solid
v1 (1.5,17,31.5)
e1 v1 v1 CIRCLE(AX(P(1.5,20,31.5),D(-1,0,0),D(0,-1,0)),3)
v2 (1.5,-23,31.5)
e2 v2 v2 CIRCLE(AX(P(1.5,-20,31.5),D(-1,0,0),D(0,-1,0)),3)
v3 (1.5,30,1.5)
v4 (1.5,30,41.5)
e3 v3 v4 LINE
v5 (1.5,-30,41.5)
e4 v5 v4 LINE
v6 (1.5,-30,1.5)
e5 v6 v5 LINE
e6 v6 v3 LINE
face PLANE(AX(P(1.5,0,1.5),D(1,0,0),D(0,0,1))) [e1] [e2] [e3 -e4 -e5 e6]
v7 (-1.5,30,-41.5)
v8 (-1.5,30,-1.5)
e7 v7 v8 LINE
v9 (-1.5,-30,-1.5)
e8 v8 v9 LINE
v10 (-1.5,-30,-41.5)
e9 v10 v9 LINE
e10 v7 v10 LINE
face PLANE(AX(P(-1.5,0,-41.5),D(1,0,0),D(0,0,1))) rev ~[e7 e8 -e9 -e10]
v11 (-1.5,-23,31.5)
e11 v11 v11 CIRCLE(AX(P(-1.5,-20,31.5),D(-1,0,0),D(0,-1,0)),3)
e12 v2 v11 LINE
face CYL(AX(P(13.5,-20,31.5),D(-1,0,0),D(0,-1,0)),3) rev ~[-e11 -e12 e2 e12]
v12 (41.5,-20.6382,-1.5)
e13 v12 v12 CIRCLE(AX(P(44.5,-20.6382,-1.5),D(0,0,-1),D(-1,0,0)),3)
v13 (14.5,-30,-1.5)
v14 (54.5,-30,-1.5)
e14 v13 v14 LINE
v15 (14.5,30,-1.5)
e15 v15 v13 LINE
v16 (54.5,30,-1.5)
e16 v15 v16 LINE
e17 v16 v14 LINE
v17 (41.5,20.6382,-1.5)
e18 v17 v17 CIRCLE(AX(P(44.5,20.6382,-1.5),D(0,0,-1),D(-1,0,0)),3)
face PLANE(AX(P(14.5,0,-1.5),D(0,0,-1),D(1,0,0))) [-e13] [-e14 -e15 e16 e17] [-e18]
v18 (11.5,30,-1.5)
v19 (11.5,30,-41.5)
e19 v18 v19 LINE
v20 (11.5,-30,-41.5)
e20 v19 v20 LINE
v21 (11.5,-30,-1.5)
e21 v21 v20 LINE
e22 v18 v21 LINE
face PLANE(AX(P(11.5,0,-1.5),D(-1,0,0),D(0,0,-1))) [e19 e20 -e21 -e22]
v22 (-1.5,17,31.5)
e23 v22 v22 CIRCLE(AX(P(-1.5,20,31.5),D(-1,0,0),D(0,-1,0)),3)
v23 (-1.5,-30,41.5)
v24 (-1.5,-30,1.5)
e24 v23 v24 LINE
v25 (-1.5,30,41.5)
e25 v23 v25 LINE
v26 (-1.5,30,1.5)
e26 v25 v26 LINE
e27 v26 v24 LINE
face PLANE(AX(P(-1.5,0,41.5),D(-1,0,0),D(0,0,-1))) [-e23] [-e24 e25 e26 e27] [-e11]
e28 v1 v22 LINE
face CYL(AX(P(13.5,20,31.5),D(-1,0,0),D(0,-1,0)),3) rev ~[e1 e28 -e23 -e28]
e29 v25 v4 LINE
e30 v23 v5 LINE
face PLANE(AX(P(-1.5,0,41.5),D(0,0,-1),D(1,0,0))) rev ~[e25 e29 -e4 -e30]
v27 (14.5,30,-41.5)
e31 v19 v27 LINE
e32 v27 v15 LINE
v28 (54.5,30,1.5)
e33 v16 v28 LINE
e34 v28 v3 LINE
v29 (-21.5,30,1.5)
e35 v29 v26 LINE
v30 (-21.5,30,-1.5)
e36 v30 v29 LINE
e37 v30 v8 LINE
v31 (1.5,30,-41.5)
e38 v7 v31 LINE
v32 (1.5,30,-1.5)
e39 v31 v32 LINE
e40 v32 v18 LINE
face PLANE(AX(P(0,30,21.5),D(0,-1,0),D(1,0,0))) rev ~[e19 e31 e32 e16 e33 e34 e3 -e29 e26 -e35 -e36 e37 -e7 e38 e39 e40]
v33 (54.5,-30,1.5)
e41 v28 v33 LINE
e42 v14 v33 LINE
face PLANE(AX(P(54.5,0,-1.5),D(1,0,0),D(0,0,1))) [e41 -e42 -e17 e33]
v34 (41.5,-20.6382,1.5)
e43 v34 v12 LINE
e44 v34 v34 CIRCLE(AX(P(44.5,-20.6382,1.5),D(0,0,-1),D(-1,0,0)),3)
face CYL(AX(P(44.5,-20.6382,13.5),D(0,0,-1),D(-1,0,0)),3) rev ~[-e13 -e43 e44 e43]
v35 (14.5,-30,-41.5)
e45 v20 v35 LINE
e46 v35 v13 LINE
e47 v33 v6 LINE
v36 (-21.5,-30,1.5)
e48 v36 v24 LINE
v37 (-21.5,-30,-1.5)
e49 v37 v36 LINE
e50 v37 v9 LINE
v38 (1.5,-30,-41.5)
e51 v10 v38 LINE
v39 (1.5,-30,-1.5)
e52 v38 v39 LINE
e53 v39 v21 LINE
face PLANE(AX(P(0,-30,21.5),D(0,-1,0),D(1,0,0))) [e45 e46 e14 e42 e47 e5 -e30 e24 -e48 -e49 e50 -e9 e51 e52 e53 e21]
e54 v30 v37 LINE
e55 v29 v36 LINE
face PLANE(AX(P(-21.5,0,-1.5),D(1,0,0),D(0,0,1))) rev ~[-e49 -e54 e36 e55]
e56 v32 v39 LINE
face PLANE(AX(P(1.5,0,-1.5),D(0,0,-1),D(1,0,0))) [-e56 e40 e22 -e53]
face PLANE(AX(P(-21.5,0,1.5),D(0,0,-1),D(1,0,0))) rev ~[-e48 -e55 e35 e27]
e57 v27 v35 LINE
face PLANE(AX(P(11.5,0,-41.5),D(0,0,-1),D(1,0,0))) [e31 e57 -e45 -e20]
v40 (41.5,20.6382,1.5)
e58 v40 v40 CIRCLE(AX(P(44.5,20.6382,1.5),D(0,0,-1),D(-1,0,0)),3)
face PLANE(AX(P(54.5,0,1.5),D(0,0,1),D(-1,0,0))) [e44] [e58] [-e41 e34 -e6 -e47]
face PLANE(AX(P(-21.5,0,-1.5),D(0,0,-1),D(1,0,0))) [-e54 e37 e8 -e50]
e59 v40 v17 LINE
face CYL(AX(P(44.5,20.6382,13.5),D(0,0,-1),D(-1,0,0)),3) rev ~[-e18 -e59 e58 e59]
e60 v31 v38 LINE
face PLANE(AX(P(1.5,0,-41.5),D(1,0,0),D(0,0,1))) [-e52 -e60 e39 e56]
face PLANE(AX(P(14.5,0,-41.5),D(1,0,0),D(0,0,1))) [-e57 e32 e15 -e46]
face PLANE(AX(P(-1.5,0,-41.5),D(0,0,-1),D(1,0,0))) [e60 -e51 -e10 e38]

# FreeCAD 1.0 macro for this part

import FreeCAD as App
import Part
import Sketcher
from FreeCAD import Vector
Q = App.Units.Quantity


def add_polygon(sketch, points):
    """Adds a closed chain of lines whose ends are joined by coincident constraints."""
    first, n = sketch.GeometryCount, len(points)
    for a, b in zip(points, points[1:] + points[:1]):
        sketch.addGeometry(Part.LineSegment(App.Vector(*a, 0), App.Vector(*b, 0)), False)
    for i in range(n):
        sketch.addConstraint(Sketcher.Constraint("Coincident", first + i, 2, first + (i + 1) % n, 1))

doc = App.newDocument("Part")
params = doc.addObject("Spreadsheet::Sheet", "Params")
for row, (alias, value) in enumerate([
    ("sketch1_width", "20 mm"),
    ("sketch1_width2", "3 mm"),
    ("sketch1_width3", "10 mm"),
    ("sketch1_width4", "40 mm"),
    ("pad1_length", "30 mm"),
    ("pad1_length2", "30 mm"),
    ("sketch2_diameter", "6 mm"),
    ("hole_diameter", "6 mm"),
    ("hole_depth", "12 mm"),
    ("sketch3_diameter", "6 mm"),
    ("hole2_diameter", "6 mm"),
    ("hole2_depth", "12 mm"),
], start=1):
    params.set(f"A{row}", alias)
    params.set(f"B{row}", "=" + value)
    params.setAlias(f"B{row}", alias)

body = doc.addObject("PartDesign::Body", "Body")

# Sketch on XZ plane
sketch1 = body.newObject("Sketcher::SketchObject", "Sketch")
sketch1.AttachmentSupport = (doc.getObject("XZ_Plane"), [""])
sketch1.MapMode = "FlatFace"
add_polygon(sketch1, [(-1.5, 41.5), (-1.5, 1.5), (-21.5, 1.5), (-21.5, -1.5), (-1.5, -1.5), (-1.5, -41.5), (1.5, -41.5), (1.5, -1.5), (11.5, -1.5), (11.5, -41.5), (14.5, -41.5), (14.5, -1.5), (54.5, -1.5), (54.5, 1.5), (1.5, 1.5), (1.5, 41.5)])  # lines 0-15
sketch1.addConstraint([
    Sketcher.Constraint("Vertical", 0),
    Sketcher.Constraint("Horizontal", 1),
    Sketcher.Constraint("Vertical", 2),
    Sketcher.Constraint("Horizontal", 3),
    Sketcher.Constraint("Vertical", 4),
    Sketcher.Constraint("Horizontal", 5),
    Sketcher.Constraint("Vertical", 6),
    Sketcher.Constraint("Horizontal", 7),
    Sketcher.Constraint("Vertical", 8),
    Sketcher.Constraint("Horizontal", 9),
    Sketcher.Constraint("Vertical", 10),
    Sketcher.Constraint("Horizontal", 11),
    Sketcher.Constraint("Vertical", 12),
    Sketcher.Constraint("Horizontal", 13),
    Sketcher.Constraint("Vertical", 14),
    Sketcher.Constraint("Horizontal", 15),
    Sketcher.Constraint("Symmetric", 0, 2, 6, 2, -1, 1),
    Sketcher.Constraint("Symmetric", 3, 2, 13, 2, -1, 1),
    Sketcher.Constraint("Symmetric", 3, 2, 6, 2, -2),
    Sketcher.Constraint("Horizontal", 5, 2, 8, 2),
    Sketcher.Constraint("Horizontal", 7, 2, 10, 2),
    Sketcher.Constraint("Equal", 5, 9),
    Sketcher.Constraint("Equal", 11, 0),
    Sketcher.Constraint("Equal", 15, 2),
    Sketcher.Constraint("Equal", 0, 4),
    Sketcher.Constraint("DistanceX", 1, 2, 1, 1, Q("20 mm")),
    Sketcher.Constraint("DistanceX", 5, 1, 5, 2, Q("3 mm")),
    Sketcher.Constraint("DistanceX", 7, 1, 7, 2, Q("10 mm")),
    Sketcher.Constraint("DistanceX", 11, 1, 11, 2, Q("40 mm")),
])
sketch1.setExpression("Constraints[41]", "Params.sketch1_width")
sketch1.setExpression("Constraints[42]", "Params.sketch1_width2")
sketch1.setExpression("Constraints[43]", "Params.sketch1_width3")
sketch1.setExpression("Constraints[44]", "Params.sketch1_width4")
pad1 = body.newObject("PartDesign::Pad", "Pad")
pad1.Profile = sketch1
pad1.Type = "TwoLengths"
pad1.setExpression("Length", "Params.pad1_length")
pad1.setExpression("Length2", "Params.pad1_length2")

# Sketch on YZ plane
sketch2 = body.newObject("Sketcher::SketchObject", "Sketch001")
sketch2.AttachmentSupport = (doc.getObject("YZ_Plane"), [""])
sketch2.MapMode = "FlatFace"
sketch2.AttachmentOffset = App.Placement(Vector(0, 0, 1.5), App.Rotation())
sketch2.addGeometry([
    Part.Circle(Vector(-20, 31.5, 0), Vector(0, 0, 1), 3),
    Part.Circle(Vector(20, 31.5, 0), Vector(0, 0, 1), 3),
], False)
sketch2.addConstraint([
    Sketcher.Constraint("Equal", 0, 1),
    Sketcher.Constraint("Symmetric", 0, 3, 1, 3, -2),
    Sketcher.Constraint("Diameter", 0, Q("6 mm")),
    Sketcher.Constraint("DistanceX", 0, 3, -1, 1, Q("20 mm")),
    Sketcher.Constraint("DistanceY", -1, 1, 0, 3, Q("31.5 mm")),
])
sketch2.setExpression("Constraints[2]", "Params.sketch2_diameter")
doc.recompute()
hole = body.newObject("PartDesign::Hole", "Hole")
hole.Profile = sketch2
hole.ThreadType = "None"
hole.setExpression("Diameter", "Params.hole_diameter")
hole.DepthType = "Dimension"
hole.setExpression("Depth", "Params.hole_depth")
hole.DrillPoint = "Angled"
hole.DrillPointAngle = 118

# Sketch on XY plane
sketch3 = body.newObject("Sketcher::SketchObject", "Sketch002")
sketch3.AttachmentSupport = (doc.getObject("XY_Plane"), [""])
sketch3.MapMode = "FlatFace"
sketch3.AttachmentOffset = App.Placement(Vector(0, 0, 1.5), App.Rotation())
sketch3.addGeometry([
    Part.Circle(Vector(44.5, 20.6382, 0), Vector(0, 0, 1), 3),
    Part.Circle(Vector(44.5, -20.6382, 0), Vector(0, 0, 1), 3),
], False)
sketch3.addConstraint([
    Sketcher.Constraint("Equal", 0, 1),
    Sketcher.Constraint("Symmetric", 0, 3, 1, 3, -1),
    Sketcher.Constraint("Diameter", 0, Q("6 mm")),
    Sketcher.Constraint("DistanceX", -1, 1, 0, 3, Q("44.5 mm")),
    Sketcher.Constraint("DistanceY", -1, 1, 0, 3, Q("20.6382 mm")),
])
sketch3.setExpression("Constraints[2]", "Params.sketch3_diameter")
doc.recompute()
hole2 = body.newObject("PartDesign::Hole", "Hole001")
hole2.Profile = sketch3
hole2.ThreadType = "None"
hole2.setExpression("Diameter", "Params.hole2_diameter")
hole2.DepthType = "Dimension"
hole2.setExpression("Depth", "Params.hole2_depth")
hole2.DrillPoint = "Angled"
hole2.DrillPointAngle = 118

doc.recompute()
